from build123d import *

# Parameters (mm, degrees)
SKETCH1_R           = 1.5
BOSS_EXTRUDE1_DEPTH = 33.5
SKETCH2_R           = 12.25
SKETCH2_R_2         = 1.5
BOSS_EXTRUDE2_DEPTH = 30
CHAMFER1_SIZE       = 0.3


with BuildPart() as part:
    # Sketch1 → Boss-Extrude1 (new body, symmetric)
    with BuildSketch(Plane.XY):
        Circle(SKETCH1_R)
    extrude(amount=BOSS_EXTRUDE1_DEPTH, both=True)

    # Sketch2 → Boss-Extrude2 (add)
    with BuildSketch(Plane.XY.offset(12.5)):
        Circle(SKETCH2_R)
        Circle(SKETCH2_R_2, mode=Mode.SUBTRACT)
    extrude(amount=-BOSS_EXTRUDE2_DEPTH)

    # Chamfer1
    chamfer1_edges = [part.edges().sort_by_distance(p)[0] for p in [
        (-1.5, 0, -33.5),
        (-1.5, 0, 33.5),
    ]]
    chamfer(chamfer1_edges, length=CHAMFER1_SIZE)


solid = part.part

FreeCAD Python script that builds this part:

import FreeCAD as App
import Part
import Sketcher
from FreeCAD import Vector
Q = App.Units.Quantity


def edges_at(feature, points):
    """Names of the edges that pass closest to the given points."""
    edges = feature.Shape.Edges
    near = lambda p: min(range(len(edges)), key=lambda i: edges[i].distToShape(Part.Vertex(*p))[0])
    return sorted({f"Edge{near(p) + 1}" for p in points})

doc = App.newDocument("Part")
body = doc.addObject("PartDesign::Body", "Body")

# Sketch on XY plane
sketch1 = doc.addObject("Sketcher::SketchObject", "Sketch")
body.addObject(sketch1)
sketch1.AttachmentSupport = (doc.XY_Plane, [""])
sketch1.MapMode = "FlatFace"
sketch1.addGeometry(Part.Circle(Vector(0, 0, 0), Vector(0, 0, 1), 1.5), False)
sketch1.addConstraint(Sketcher.Constraint("Coincident", 0, 3, -1, 1))
sketch1.addConstraint(Sketcher.Constraint("Diameter", 0, Q("3 mm")))
pad1 = doc.addObject("PartDesign::Pad", "Pad")
body.addObject(pad1)
pad1.Profile = sketch1
pad1.Length = 67
pad1.Midplane = True

# Sketch on XY plane
sketch2 = doc.addObject("Sketcher::SketchObject", "Sketch001")
body.addObject(sketch2)
sketch2.AttachmentSupport = (doc.XY_Plane, [""])
sketch2.MapMode = "FlatFace"
sketch2.AttachmentOffset = App.Placement(Vector(0, 0, 12.5), App.Rotation())
sketch2.addGeometry(Part.Circle(Vector(0, 0, 0), Vector(0, 0, 1), 12.2), False)
sketch2.addGeometry(Part.Circle(Vector(0, 0, 0), Vector(0, 0, 1), 1.5), False)
sketch2.addConstraint(Sketcher.Constraint("Coincident", 0, 3, -1, 1))
sketch2.addConstraint(Sketcher.Constraint("Coincident", 1, 3, -1, 1))
sketch2.addConstraint(Sketcher.Constraint("Diameter", 1, Q("3 mm")))
sketch2.addConstraint(Sketcher.Constraint("Diameter", 0, Q("24.5 mm")))
pad2 = doc.addObject("PartDesign::Pad", "Pad001")
body.addObject(pad2)
pad2.Profile = sketch2
pad2.Length = 30
pad2.Reversed = True
doc.recompute()

chamfer = doc.addObject("PartDesign::Chamfer", "Chamfer")
body.addObject(chamfer)
chamfer.Base = (pad2, edges_at(pad2, [(-1.5, 0, -33.5), (-1.5, 0, 33.5)]))
chamfer.Size = 0.3

doc.recompute()
